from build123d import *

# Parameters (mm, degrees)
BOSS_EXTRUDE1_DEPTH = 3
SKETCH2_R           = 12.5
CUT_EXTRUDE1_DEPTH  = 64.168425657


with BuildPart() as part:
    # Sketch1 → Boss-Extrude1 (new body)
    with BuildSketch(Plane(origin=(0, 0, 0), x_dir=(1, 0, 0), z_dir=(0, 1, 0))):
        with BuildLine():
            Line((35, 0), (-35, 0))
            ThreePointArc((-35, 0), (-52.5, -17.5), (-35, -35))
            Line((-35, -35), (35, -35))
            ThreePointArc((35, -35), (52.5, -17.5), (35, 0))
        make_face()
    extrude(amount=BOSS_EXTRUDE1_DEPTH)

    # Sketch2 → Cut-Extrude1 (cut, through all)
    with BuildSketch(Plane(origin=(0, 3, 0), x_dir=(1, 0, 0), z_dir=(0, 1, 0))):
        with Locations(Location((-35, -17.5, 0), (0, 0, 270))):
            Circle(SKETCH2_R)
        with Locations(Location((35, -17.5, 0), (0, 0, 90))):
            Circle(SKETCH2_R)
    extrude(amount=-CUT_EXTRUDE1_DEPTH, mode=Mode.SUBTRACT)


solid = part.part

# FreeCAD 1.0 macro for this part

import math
import FreeCAD as App
import Part
import Sketcher
from FreeCAD import Vector

doc = App.newDocument("Part")
body = doc.addObject("PartDesign::Body", "Body")

sketch1 = body.newObject("Sketcher::SketchObject", "Sketch")
sketch1.AttachmentSupport = (doc.getObject("XZ_Plane"), [""])
sketch1.MapMode = "FlatFace"
sketch1.addGeometry([
    Part.LineSegment(Vector(35, 0, 0), Vector(-35, 0, 0)),
    Part.ArcOfCircle(Part.Circle(Vector(-35, 17.5, 0), Vector(0, 0, 1), 17.5), math.radians(90), math.radians(270)),
    Part.LineSegment(Vector(-35, 35, 0), Vector(35, 35, 0)),
    Part.ArcOfCircle(Part.Circle(Vector(35, 17.5, 0), Vector(0, 0, 1), 17.5), math.radians(-90), math.radians(90)),
], False)
sketch1.addConstraint([
    Sketcher.Constraint("Tangent", 0, 2, 1, 2),
    Sketcher.Constraint("Tangent", 1, 1, 2, 1),
    Sketcher.Constraint("Tangent", 2, 2, 3, 2),
    Sketcher.Constraint("Tangent", 3, 1, 0, 1),
    Sketcher.Constraint("Horizontal", 0),
    Sketcher.Constraint("Horizontal", 2),
    Sketcher.Constraint("Symmetric", 0, 2, 3, 1, -1, 1),
    Sketcher.Constraint("Radius", 1, 17.5),
    Sketcher.Constraint("DistanceX", 0, 2, 0, 1, 70.0),
])
pad1 = body.newObject("PartDesign::Pad", "Pad")
pad1.Profile = sketch1
pad1.Length = 3
pad1.Reversed = True

sketch2 = body.newObject("Sketcher::SketchObject", "Sketch001")
sketch2.AttachmentSupport = (doc.getObject("XZ_Plane"), [""])
sketch2.MapMode = "FlatFace"
sketch2.AttachmentOffset = App.Placement(Vector(0, 0, -3), App.Rotation())
sketch2.addGeometry([
    Part.Circle(Vector(-35, 17.5, 0), Vector(0, 0, 1), 12.5),
    Part.Circle(Vector(35, 17.5, 0), Vector(0, 0, 1), 12.5),
], False)
sketch2.addConstraint([
    Sketcher.Constraint("Equal", 0, 1),
    Sketcher.Constraint("Symmetric", 0, 3, 1, 3, -2),
    Sketcher.Constraint("Diameter", 0, 25.0),
    Sketcher.Constraint("DistanceX", 0, 3, -1, 1, 35.0),
    Sketcher.Constraint("DistanceY", -1, 1, 0, 3, 17.5),
])
pocket1 = body.newObject("PartDesign::Pocket", "Pocket")
pocket1.Profile = sketch2
pocket1.Type = "ThroughAll"
pocket1.Reversed = True

doc.recompute()
